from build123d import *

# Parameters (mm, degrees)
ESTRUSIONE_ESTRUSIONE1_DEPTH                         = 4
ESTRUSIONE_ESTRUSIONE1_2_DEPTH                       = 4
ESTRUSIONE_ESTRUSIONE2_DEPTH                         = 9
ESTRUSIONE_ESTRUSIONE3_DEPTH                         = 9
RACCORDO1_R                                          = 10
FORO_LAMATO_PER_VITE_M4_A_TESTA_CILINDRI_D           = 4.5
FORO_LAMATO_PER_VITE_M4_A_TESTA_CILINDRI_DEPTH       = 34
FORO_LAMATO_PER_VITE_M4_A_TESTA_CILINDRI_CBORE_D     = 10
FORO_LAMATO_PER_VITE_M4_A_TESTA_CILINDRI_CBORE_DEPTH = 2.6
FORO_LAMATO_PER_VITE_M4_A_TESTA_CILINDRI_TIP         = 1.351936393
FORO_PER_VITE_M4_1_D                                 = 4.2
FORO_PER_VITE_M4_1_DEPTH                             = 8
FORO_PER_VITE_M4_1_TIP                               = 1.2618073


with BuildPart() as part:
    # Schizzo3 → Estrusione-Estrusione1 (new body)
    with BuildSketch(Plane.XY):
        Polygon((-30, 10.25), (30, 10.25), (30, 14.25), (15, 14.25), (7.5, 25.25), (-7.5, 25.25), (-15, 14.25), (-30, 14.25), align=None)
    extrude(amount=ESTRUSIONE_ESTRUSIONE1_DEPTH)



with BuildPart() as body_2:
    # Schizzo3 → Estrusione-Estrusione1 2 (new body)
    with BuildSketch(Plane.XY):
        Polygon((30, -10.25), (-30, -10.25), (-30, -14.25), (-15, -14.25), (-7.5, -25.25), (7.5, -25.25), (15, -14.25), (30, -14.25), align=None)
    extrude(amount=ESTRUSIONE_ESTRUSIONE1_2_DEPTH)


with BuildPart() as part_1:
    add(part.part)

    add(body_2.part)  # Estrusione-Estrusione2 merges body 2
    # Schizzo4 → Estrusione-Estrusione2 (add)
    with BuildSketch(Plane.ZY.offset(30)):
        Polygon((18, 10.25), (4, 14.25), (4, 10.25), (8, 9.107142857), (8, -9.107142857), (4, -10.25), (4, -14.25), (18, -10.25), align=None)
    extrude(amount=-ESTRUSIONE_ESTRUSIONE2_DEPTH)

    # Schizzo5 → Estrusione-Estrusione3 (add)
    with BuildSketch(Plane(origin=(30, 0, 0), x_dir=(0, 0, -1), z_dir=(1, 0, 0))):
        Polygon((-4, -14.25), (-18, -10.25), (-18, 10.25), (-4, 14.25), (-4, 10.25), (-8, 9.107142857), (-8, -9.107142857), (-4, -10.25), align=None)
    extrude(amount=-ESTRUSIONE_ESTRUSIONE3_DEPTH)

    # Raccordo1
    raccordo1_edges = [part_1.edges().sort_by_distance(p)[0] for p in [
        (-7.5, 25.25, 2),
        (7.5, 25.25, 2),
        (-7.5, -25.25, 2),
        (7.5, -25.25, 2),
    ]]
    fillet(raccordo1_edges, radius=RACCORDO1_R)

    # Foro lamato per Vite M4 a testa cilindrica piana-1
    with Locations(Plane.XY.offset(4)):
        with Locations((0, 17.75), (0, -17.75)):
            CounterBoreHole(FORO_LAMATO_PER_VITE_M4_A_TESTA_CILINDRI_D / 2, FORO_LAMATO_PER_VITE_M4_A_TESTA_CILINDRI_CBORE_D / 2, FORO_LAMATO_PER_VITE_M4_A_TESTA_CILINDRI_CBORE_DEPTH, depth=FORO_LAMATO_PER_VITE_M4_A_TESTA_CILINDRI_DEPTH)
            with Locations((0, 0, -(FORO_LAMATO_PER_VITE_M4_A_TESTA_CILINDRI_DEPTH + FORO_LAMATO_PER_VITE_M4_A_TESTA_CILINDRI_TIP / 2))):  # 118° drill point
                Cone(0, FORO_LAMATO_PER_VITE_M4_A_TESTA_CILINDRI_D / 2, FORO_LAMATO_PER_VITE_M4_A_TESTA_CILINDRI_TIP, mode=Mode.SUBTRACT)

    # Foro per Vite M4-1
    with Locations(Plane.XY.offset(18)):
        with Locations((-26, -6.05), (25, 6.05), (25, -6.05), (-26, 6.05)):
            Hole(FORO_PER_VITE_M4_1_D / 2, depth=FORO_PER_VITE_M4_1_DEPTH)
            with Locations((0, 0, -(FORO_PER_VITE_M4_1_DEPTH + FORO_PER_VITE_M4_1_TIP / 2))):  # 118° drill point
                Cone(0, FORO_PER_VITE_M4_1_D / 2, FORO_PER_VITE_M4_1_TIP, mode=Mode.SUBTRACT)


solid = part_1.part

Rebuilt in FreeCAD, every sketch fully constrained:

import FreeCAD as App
import Part
import Sketcher
from FreeCAD import Vector
Q = App.Units.Quantity


def edges_at(feature, points):
    """Names of the edges that pass closest to the given points."""
    edges = feature.Shape.Edges
    near = lambda p: min(range(len(edges)), key=lambda i: edges[i].distToShape(Part.Vertex(*p))[0])
    return sorted({f"Edge{near(p) + 1}" for p in points})

doc = App.newDocument("Part")
body = doc.addObject("PartDesign::Body", "Body")

sketch1 = body.newObject("Sketcher::SketchObject", "Sketch")
sketch1.AttachmentSupport = (doc.getObject("XY_Plane"), [""])
sketch1.MapMode = "FlatFace"
sketch1.addGeometry(Part.LineSegment(Vector(-30, 10.2, 0), Vector(30, 10.2, 0)), False)
sketch1.addGeometry(Part.LineSegment(Vector(30, 10.2, 0), Vector(30, 14.2, 0)), False)
sketch1.addGeometry(Part.LineSegment(Vector(30, 14.2, 0), Vector(15, 14.2, 0)), False)
sketch1.addGeometry(Part.LineSegment(Vector(15, 14.2, 0), Vector(7.5, 25.2, 0)), False)
sketch1.addGeometry(Part.LineSegment(Vector(7.5, 25.2, 0), Vector(-7.5, 25.2, 0)), False)
sketch1.addGeometry(Part.LineSegment(Vector(-7.5, 25.2, 0), Vector(-15, 14.2, 0)), False)
sketch1.addGeometry(Part.LineSegment(Vector(-15, 14.2, 0), Vector(-30, 14.2, 0)), False)
sketch1.addGeometry(Part.LineSegment(Vector(-30, 14.2, 0), Vector(-30, 10.2, 0)), False)
sketch1.addConstraint(Sketcher.Constraint("Coincident", 0, 2, 1, 1))
sketch1.addConstraint(Sketcher.Constraint("Coincident", 1, 2, 2, 1))
sketch1.addConstraint(Sketcher.Constraint("Coincident", 2, 2, 3, 1))
sketch1.addConstraint(Sketcher.Constraint("Coincident", 3, 2, 4, 1))
sketch1.addConstraint(Sketcher.Constraint("Coincident", 4, 2, 5, 1))
sketch1.addConstraint(Sketcher.Constraint("Coincident", 5, 2, 6, 1))
sketch1.addConstraint(Sketcher.Constraint("Coincident", 6, 2, 7, 1))
sketch1.addConstraint(Sketcher.Constraint("Coincident", 7, 2, 0, 1))
sketch1.addConstraint(Sketcher.Constraint("Horizontal", 0))
sketch1.addConstraint(Sketcher.Constraint("Vertical", 1))
sketch1.addConstraint(Sketcher.Constraint("Horizontal", 2))
sketch1.addConstraint(Sketcher.Constraint("Horizontal", 4))
sketch1.addConstraint(Sketcher.Constraint("Horizontal", 6))
sketch1.addConstraint(Sketcher.Constraint("Vertical", 7))
sketch1.addConstraint(Sketcher.Constraint("Symmetric", 2, 2, 5, 2, -2))
sketch1.addConstraint(Sketcher.Constraint("Equal", 2, 4))
sketch1.addConstraint(Sketcher.Constraint("Equal", 4, 6))
sketch1.addConstraint(Sketcher.Constraint("Equal", 3, 5))
sketch1.addConstraint(Sketcher.Constraint("DistanceX", 0, 1, 0, 2, Q("60 mm")))
sketch1.addConstraint(Sketcher.Constraint("DistanceX", 2, 2, 2, 1, Q("15 mm")))
sketch1.addConstraint(Sketcher.Constraint("DistanceY", 1, 1, 1, 2, Q("4 mm")))
sketch1.addConstraint(Sketcher.Constraint("DistanceY", 2, 2, 3, 2, Q("11 mm")))
sketch1.addConstraint(Sketcher.Constraint("DistanceY", -1, 1, 0, 2, Q("10.25 mm")))
pad1 = body.newObject("PartDesign::Pad", "Pad")
pad1.Profile = sketch1
pad1.Length = 4
body2 = doc.addObject("PartDesign::Body", "Body001")

sketch2 = body2.newObject("Sketcher::SketchObject", "Sketch001")
sketch2.AttachmentSupport = (doc.getObject("XY_Plane001"), [""])
sketch2.MapMode = "FlatFace"
sketch2.addGeometry(Part.LineSegment(Vector(30, -10.2, 0), Vector(-30, -10.2, 0)), False)
sketch2.addGeometry(Part.LineSegment(Vector(-30, -10.2, 0), Vector(-30, -14.2, 0)), False)
sketch2.addGeometry(Part.LineSegment(Vector(-30, -14.2, 0), Vector(-15, -14.2, 0)), False)
sketch2.addGeometry(Part.LineSegment(Vector(-15, -14.2, 0), Vector(-7.5, -25.2, 0)), False)
sketch2.addGeometry(Part.LineSegment(Vector(-7.5, -25.2, 0), Vector(7.5, -25.2, 0)), False)
sketch2.addGeometry(Part.LineSegment(Vector(7.5, -25.2, 0), Vector(15, -14.2, 0)), False)
sketch2.addGeometry(Part.LineSegment(Vector(15, -14.2, 0), Vector(30, -14.2, 0)), False)
sketch2.addGeometry(Part.LineSegment(Vector(30, -14.2, 0), Vector(30, -10.2, 0)), False)
sketch2.addConstraint(Sketcher.Constraint("Coincident", 0, 2, 1, 1))
sketch2.addConstraint(Sketcher.Constraint("Coincident", 1, 2, 2, 1))
sketch2.addConstraint(Sketcher.Constraint("Coincident", 2, 2, 3, 1))
sketch2.addConstraint(Sketcher.Constraint("Coincident", 3, 2, 4, 1))
sketch2.addConstraint(Sketcher.Constraint("Coincident", 4, 2, 5, 1))
sketch2.addConstraint(Sketcher.Constraint("Coincident", 5, 2, 6, 1))
sketch2.addConstraint(Sketcher.Constraint("Coincident", 6, 2, 7, 1))
sketch2.addConstraint(Sketcher.Constraint("Coincident", 7, 2, 0, 1))
sketch2.addConstraint(Sketcher.Constraint("Horizontal", 0))
sketch2.addConstraint(Sketcher.Constraint("Vertical", 1))
sketch2.addConstraint(Sketcher.Constraint("Horizontal", 2))
sketch2.addConstraint(Sketcher.Constraint("Horizontal", 4))
sketch2.addConstraint(Sketcher.Constraint("Horizontal", 6))
sketch2.addConstraint(Sketcher.Constraint("Vertical", 7))
sketch2.addConstraint(Sketcher.Constraint("Symmetric", 2, 2, 5, 2, -2))
sketch2.addConstraint(Sketcher.Constraint("Equal", 2, 4))
sketch2.addConstraint(Sketcher.Constraint("Equal", 4, 6))
sketch2.addConstraint(Sketcher.Constraint("Equal", 3, 5))
sketch2.addConstraint(Sketcher.Constraint("DistanceX", 0, 2, 0, 1, Q("60 mm")))
sketch2.addConstraint(Sketcher.Constraint("DistanceX", 2, 1, 2, 2, Q("15 mm")))
sketch2.addConstraint(Sketcher.Constraint("DistanceY", 1, 2, 1, 1, Q("4 mm")))
sketch2.addConstraint(Sketcher.Constraint("DistanceY", 3, 2, 2, 2, Q("11 mm")))
sketch2.addConstraint(Sketcher.Constraint("DistanceY", 0, 2, -1, 1, Q("10.25 mm")))
pad2 = body2.newObject("PartDesign::Pad", "Pad001")
pad2.Profile = sketch2
pad2.Length = 4
body.AllowCompound = True
doc.recompute()

boolean = body.newObject("PartDesign::Boolean", "Boolean")
boolean.Type = "Fuse"
boolean.addObjects([body2])

sketch3 = body.newObject("Sketcher::SketchObject", "Sketch002")
sketch3.AttachmentSupport = (doc.getObject("YZ_Plane"), [""])
sketch3.MapMode = "FlatFace"
sketch3.AttachmentOffset = App.Placement(Vector(0, 0, -30), App.Rotation())
sketch3.addGeometry(Part.LineSegment(Vector(10.2, 18, 0), Vector(14.2, 4, 0)), False)
sketch3.addGeometry(Part.LineSegment(Vector(14.2, 4, 0), Vector(10.2, 4, 0)), False)
sketch3.addGeometry(Part.LineSegment(Vector(10.2, 4, 0), Vector(9.1, 8, 0)), False)
sketch3.addGeometry(Part.LineSegment(Vector(9.1, 8, 0), Vector(-9.1, 8, 0)), False)
sketch3.addGeometry(Part.LineSegment(Vector(-9.1, 8, 0), Vector(-10.2, 4, 0)), False)
sketch3.addGeometry(Part.LineSegment(Vector(-10.2, 4, 0), Vector(-14.2, 4, 0)), False)
sketch3.addGeometry(Part.LineSegment(Vector(-14.2, 4, 0), Vector(-10.2, 18, 0)), False)
sketch3.addGeometry(Part.LineSegment(Vector(-10.2, 18, 0), Vector(10.2, 18, 0)), False)
sketch3.addConstraint(Sketcher.Constraint("Coincident", 0, 2, 1, 1))
sketch3.addConstraint(Sketcher.Constraint("Coincident", 1, 2, 2, 1))
sketch3.addConstraint(Sketcher.Constraint("Coincident", 2, 2, 3, 1))
sketch3.addConstraint(Sketcher.Constraint("Coincident", 3, 2, 4, 1))
sketch3.addConstraint(Sketcher.Constraint("Coincident", 4, 2, 5, 1))
sketch3.addConstraint(Sketcher.Constraint("Coincident", 5, 2, 6, 1))
sketch3.addConstraint(Sketcher.Constraint("Coincident", 6, 2, 7, 1))
sketch3.addConstraint(Sketcher.Constraint("Coincident", 7, 2, 0, 1))
sketch3.addConstraint(Sketcher.Constraint("Horizontal", 1))
sketch3.addConstraint(Sketcher.Constraint("Horizontal", 3))
sketch3.addConstraint(Sketcher.Constraint("Horizontal", 5))
sketch3.addConstraint(Sketcher.Constraint("Horizontal", 7))
sketch3.addConstraint(Sketcher.Constraint("Symmetric", 1, 2, 4, 2, -2))
sketch3.addConstraint(Sketcher.Constraint("Parallel", 0, 2))
sketch3.addConstraint(Sketcher.Constraint("Parallel", 4, 6))
sketch3.addConstraint(Sketcher.Constraint("Vertical", 4, 2, 6, 2))
sketch3.addConstraint(Sketcher.Constraint("Vertical", 1, 2, 7, 2))
sketch3.addConstraint(Sketcher.Constraint("Equal", 1, 5))
sketch3.addConstraint(Sketcher.Constraint("DistanceX", 1, 2, 1, 1, Q("4 mm")))
sketch3.addConstraint(Sketcher.Constraint("DistanceX", 7, 1, 7, 2, Q("20.5 mm")))
sketch3.addConstraint(Sketcher.Constraint("DistanceY", -1, 1, 0, 2, Q("4 mm")))
sketch3.addConstraint(Sketcher.Constraint("DistanceY", -1, 1, 2, 2, Q("8 mm")))
sketch3.addConstraint(Sketcher.Constraint("DistanceY", -1, 1, 6, 2, Q("18 mm")))
pad3 = body.newObject("PartDesign::Pad", "Pad002")
pad3.Profile = sketch3
pad3.Length = 9

sketch4 = body.newObject("Sketcher::SketchObject", "Sketch003")
sketch4.AttachmentSupport = (doc.getObject("YZ_Plane"), [""])
sketch4.MapMode = "FlatFace"
sketch4.AttachmentOffset = App.Placement(Vector(0, 0, 30), App.Rotation())
sketch4.addGeometry(Part.LineSegment(Vector(-10.2, 18, 0), Vector(-14.2, 4, 0)), False)
sketch4.addGeometry(Part.LineSegment(Vector(-14.2, 4, 0), Vector(-10.2, 4, 0)), False)
sketch4.addGeometry(Part.LineSegment(Vector(-10.2, 4, 0), Vector(-9.1, 8, 0)), False)
sketch4.addGeometry(Part.LineSegment(Vector(-9.1, 8, 0), Vector(9.1, 8, 0)), False)
sketch4.addGeometry(Part.LineSegment(Vector(9.1, 8, 0), Vector(10.2, 4, 0)), False)
sketch4.addGeometry(Part.LineSegment(Vector(10.2, 4, 0), Vector(14.2, 4, 0)), False)
sketch4.addGeometry(Part.LineSegment(Vector(14.2, 4, 0), Vector(10.2, 18, 0)), False)
sketch4.addGeometry(Part.LineSegment(Vector(10.2, 18, 0), Vector(-10.2, 18, 0)), False)
sketch4.addConstraint(Sketcher.Constraint("Coincident", 0, 2, 1, 1))
sketch4.addConstraint(Sketcher.Constraint("Coincident", 1, 2, 2, 1))
sketch4.addConstraint(Sketcher.Constraint("Coincident", 2, 2, 3, 1))
sketch4.addConstraint(Sketcher.Constraint("Coincident", 3, 2, 4, 1))
sketch4.addConstraint(Sketcher.Constraint("Coincident", 4, 2, 5, 1))
sketch4.addConstraint(Sketcher.Constraint("Coincident", 5, 2, 6, 1))
sketch4.addConstraint(Sketcher.Constraint("Coincident", 6, 2, 7, 1))
sketch4.addConstraint(Sketcher.Constraint("Coincident", 7, 2, 0, 1))
sketch4.addConstraint(Sketcher.Constraint("Horizontal", 1))
sketch4.addConstraint(Sketcher.Constraint("Horizontal", 3))
sketch4.addConstraint(Sketcher.Constraint("Horizontal", 5))
sketch4.addConstraint(Sketcher.Constraint("Horizontal", 7))
sketch4.addConstraint(Sketcher.Constraint("Symmetric", 1, 2, 4, 2, -2))
sketch4.addConstraint(Sketcher.Constraint("Parallel", 0, 2))
sketch4.addConstraint(Sketcher.Constraint("Parallel", 4, 6))
sketch4.addConstraint(Sketcher.Constraint("Vertical", 4, 2, 6, 2))
sketch4.addConstraint(Sketcher.Constraint("Vertical", 1, 2, 7, 2))
sketch4.addConstraint(Sketcher.Constraint("Equal", 1, 5))
sketch4.addConstraint(Sketcher.Constraint("DistanceX", 1, 1, 1, 2, Q("4 mm")))
sketch4.addConstraint(Sketcher.Constraint("DistanceX", 7, 2, 7, 1, Q("20.5 mm")))
sketch4.addConstraint(Sketcher.Constraint("DistanceY", -1, 1, 0, 2, Q("4 mm")))
sketch4.addConstraint(Sketcher.Constraint("DistanceY", -1, 1, 2, 2, Q("8 mm")))
sketch4.addConstraint(Sketcher.Constraint("DistanceY", -1, 1, 6, 2, Q("18 mm")))
pad4 = body.newObject("PartDesign::Pad", "Pad003")
pad4.Profile = sketch4
pad4.Length = 9
pad4.Reversed = True
doc.recompute()

fillet = body.newObject("PartDesign::Fillet", "Fillet")
fillet.Base = (pad4, edges_at(pad4, [
    (-7.5, 25.25, 2),
    (7.5, 25.25, 2),
    (-7.5, -25.25, 2),
    (7.5, -25.25, 2),
]))
fillet.Radius = 10

sketch5 = body.newObject("Sketcher::SketchObject", "Sketch004")
sketch5.AttachmentSupport = (doc.getObject("XY_Plane"), [""])
sketch5.MapMode = "FlatFace"
sketch5.AttachmentOffset = App.Placement(Vector(0, 0, 4), App.Rotation())
sketch5.addGeometry(Part.Circle(Vector(0, 17.8, 0), Vector(0, 0, 1), 2.2), False)
sketch5.addGeometry(Part.Circle(Vector(0, -17.8, 0), Vector(0, 0, 1), 2.2), False)
sketch5.addConstraint(Sketcher.Constraint("Equal", 0, 1))
sketch5.addConstraint(Sketcher.Constraint("Symmetric", 0, 3, 1, 3, -1, 1))
sketch5.addConstraint(Sketcher.Constraint("PointOnObject", 0, 3, -2))
sketch5.addConstraint(Sketcher.Constraint("Diameter", 0, Q("4.5 mm")))
sketch5.addConstraint(Sketcher.Constraint("DistanceY", 1, 3, 0, 3, Q("35.5 mm")))
doc.recompute()
hole = body.newObject("PartDesign::Hole", "Hole")
hole.Profile = sketch5
hole.ThreadType = "None"
hole.Diameter = 4.5
hole.DepthType = "Dimension"
hole.Depth = 34
hole.DrillPoint = "Angled"
hole.DrillPointAngle = 118
hole.HoleCutType = "Counterbore"
hole.HoleCutDiameter = 10
hole.HoleCutDepth = 2.6

sketch6 = body.newObject("Sketcher::SketchObject", "Sketch005")
sketch6.AttachmentSupport = (doc.getObject("XY_Plane"), [""])
sketch6.MapMode = "FlatFace"
sketch6.AttachmentOffset = App.Placement(Vector(0, 0, 18), App.Rotation())
sketch6.addGeometry(Part.Circle(Vector(-26, -6, 0), Vector(0, 0, 1), 2.1), False)
sketch6.addGeometry(Part.Circle(Vector(25, 6, 0), Vector(0, 0, 1), 2.1), False)
sketch6.addGeometry(Part.Circle(Vector(25, -6, 0), Vector(0, 0, 1), 2.1), False)
sketch6.addGeometry(Part.Circle(Vector(-26, 6, 0), Vector(0, 0, 1), 2.1), False)
sketch6.addConstraint(Sketcher.Constraint("Equal", 0, 1))
sketch6.addConstraint(Sketcher.Constraint("Equal", 1, 2))
sketch6.addConstraint(Sketcher.Constraint("Equal", 2, 3))
sketch6.addConstraint(Sketcher.Constraint("Symmetric", 1, 3, 2, 3, -1))
sketch6.addConstraint(Sketcher.Constraint("Symmetric", 0, 3, 3, 3, -1))
sketch6.addConstraint(Sketcher.Constraint("Horizontal", 0, 3, 2, 3))
sketch6.addConstraint(Sketcher.Constraint("Diameter", 0, Q("4.2 mm")))
sketch6.addConstraint(Sketcher.Constraint("DistanceX", 0, 3, -1, 1, Q("26 mm")))
sketch6.addConstraint(Sketcher.Constraint("DistanceX", -1, 1, 1, 3, Q("25 mm")))
sketch6.addConstraint(Sketcher.Constraint("DistanceY", 0, 3, 1, 3, Q("12.1 mm")))
doc.recompute()
hole2 = body.newObject("PartDesign::Hole", "Hole001")
hole2.Profile = sketch6
hole2.ThreadType = "None"
hole2.Diameter = 4.2
hole2.DepthType = "Dimension"
hole2.Depth = 8
hole2.DrillPoint = "Angled"
hole2.DrillPointAngle = 118

doc.recompute()
